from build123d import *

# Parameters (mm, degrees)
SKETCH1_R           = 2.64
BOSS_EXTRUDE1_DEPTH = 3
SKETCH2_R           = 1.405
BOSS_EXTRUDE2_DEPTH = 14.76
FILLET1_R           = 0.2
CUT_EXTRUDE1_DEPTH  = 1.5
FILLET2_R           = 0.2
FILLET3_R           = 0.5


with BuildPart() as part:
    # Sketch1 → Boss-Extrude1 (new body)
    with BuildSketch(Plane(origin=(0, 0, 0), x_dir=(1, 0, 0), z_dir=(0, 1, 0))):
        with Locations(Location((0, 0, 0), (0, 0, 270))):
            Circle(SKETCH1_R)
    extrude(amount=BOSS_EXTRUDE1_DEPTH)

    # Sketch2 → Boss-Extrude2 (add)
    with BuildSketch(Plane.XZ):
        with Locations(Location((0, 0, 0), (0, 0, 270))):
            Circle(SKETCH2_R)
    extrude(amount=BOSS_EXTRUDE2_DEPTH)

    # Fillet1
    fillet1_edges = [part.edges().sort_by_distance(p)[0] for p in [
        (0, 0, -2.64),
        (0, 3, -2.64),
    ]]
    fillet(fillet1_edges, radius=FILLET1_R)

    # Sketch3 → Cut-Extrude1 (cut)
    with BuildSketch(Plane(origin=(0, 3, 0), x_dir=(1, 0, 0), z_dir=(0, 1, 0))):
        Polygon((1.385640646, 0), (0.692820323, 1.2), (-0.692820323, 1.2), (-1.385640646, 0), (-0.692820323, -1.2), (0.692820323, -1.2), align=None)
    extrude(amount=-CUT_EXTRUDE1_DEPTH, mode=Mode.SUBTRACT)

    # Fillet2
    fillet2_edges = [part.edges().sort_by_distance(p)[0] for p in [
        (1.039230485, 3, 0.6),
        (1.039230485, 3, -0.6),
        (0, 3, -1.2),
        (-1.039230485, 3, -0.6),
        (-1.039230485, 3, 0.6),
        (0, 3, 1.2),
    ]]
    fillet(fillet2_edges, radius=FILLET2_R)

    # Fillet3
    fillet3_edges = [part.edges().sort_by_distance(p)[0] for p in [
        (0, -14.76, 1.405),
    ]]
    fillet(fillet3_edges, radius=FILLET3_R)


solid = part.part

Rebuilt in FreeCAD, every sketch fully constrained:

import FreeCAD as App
import Part
import Sketcher
Q = App.Units.Quantity


def edges_at(feature, points):
    """Names of the edges that pass closest to the given points."""
    edges = feature.Shape.Edges
    near = lambda p: min(range(len(edges)), key=lambda i: edges[i].distToShape(Part.Vertex(*p))[0])
    return sorted({f"Edge{near(p) + 1}" for p in points})

doc = App.newDocument("Part")
body = doc.addObject("PartDesign::Body", "Body")

sketch1 = doc.addObject("Sketcher::SketchObject", "Sketch")
body.addObject(sketch1)
sketch1.AttachmentSupport = (doc.XZ_Plane, [""])
sketch1.MapMode = "FlatFace"
sketch1.addGeometry(Part.Circle(App.Vector(0, 0, 0), App.Vector(0, 0, 1), 2.6), False)
sketch1.addConstraint([
    Sketcher.Constraint("Coincident", 0, 3, -1, 1),
    Sketcher.Constraint("Diameter", 0, Q("5.28 mm")),
])
pad1 = doc.addObject("PartDesign::Pad", "Pad")
body.addObject(pad1)
pad1.Profile = sketch1
pad1.Length = 3
pad1.Reversed = True

sketch2 = doc.addObject("Sketcher::SketchObject", "Sketch001")
body.addObject(sketch2)
sketch2.AttachmentSupport = (doc.XZ_Plane, [""])
sketch2.MapMode = "FlatFace"
sketch2.addGeometry(Part.Circle(App.Vector(0, 0, 0), App.Vector(0, 0, 1), 1.4), False)
sketch2.addConstraint([
    Sketcher.Constraint("Coincident", 0, 3, -1, 1),
    Sketcher.Constraint("Diameter", 0, Q("2.81 mm")),
])
pad2 = doc.addObject("PartDesign::Pad", "Pad001")
body.addObject(pad2)
pad2.Profile = sketch2
pad2.Length = 14.76
doc.recompute()

fillet = doc.addObject("PartDesign::Fillet", "Fillet")
body.addObject(fillet)
fillet.Base = (pad2, edges_at(pad2, [(0, 0, -2.64), (0, 3, -2.64)]))
fillet.Radius = 0.2

sketch3 = doc.addObject("Sketcher::SketchObject", "Sketch002")
body.addObject(sketch3)
sketch3.AttachmentSupport = (doc.XZ_Plane, [""])
sketch3.MapMode = "FlatFace"
sketch3.AttachmentOffset = App.Placement(App.Vector(0, 0, -3), App.Rotation())
sketch3.addGeometry([
    Part.LineSegment(App.Vector(1.4, 0, 0), App.Vector(0.7, -1.2, 0)),
    Part.LineSegment(App.Vector(0.7, -1.2, 0), App.Vector(-0.7, -1.2, 0)),
    Part.LineSegment(App.Vector(-0.7, -1.2, 0), App.Vector(-1.4, 0, 0)),
    Part.LineSegment(App.Vector(-1.4, 0, 0), App.Vector(-0.7, 1.2, 0)),
    Part.LineSegment(App.Vector(-0.7, 1.2, 0), App.Vector(0.7, 1.2, 0)),
    Part.LineSegment(App.Vector(0.7, 1.2, 0), App.Vector(1.4, 0, 0)),
], False)
sketch3.addConstraint([
    Sketcher.Constraint("Coincident", 0, 2, 1, 1),
    Sketcher.Constraint("Coincident", 1, 2, 2, 1),
    Sketcher.Constraint("Coincident", 2, 2, 3, 1),
    Sketcher.Constraint("Coincident", 3, 2, 4, 1),
    Sketcher.Constraint("Coincident", 4, 2, 5, 1),
    Sketcher.Constraint("Coincident", 5, 2, 0, 1),
    Sketcher.Constraint("Horizontal", 1),
    Sketcher.Constraint("Horizontal", 4),
    Sketcher.Constraint("Symmetric", 0, 2, 3, 2, -1, 1),
    Sketcher.Constraint("Symmetric", 2, 2, 5, 2, -1, 1),
    Sketcher.Constraint("PointOnObject", 2, 2, -1),
    Sketcher.Constraint("Parallel", 2, 5),
    Sketcher.Constraint("Vertical", 1, 2, 3, 2),
    Sketcher.Constraint("Angle", 0, Q("-120 deg")),
    Sketcher.Constraint("DistanceY", 0, 2, -1, 1, Q("1.2 mm")),
    Sketcher.Constraint("DistanceX", 1, 2, 1, 1, Q("1.385641 mm")),
])
pocket1 = doc.addObject("PartDesign::Pocket", "Pocket")
body.addObject(pocket1)
pocket1.Profile = sketch3
pocket1.Length = 1.5
pocket1.Reversed = True
doc.recompute()

fillet2 = doc.addObject("PartDesign::Fillet", "Fillet001")
body.addObject(fillet2)
fillet2.Base = (pocket1, edges_at(pocket1, [
    (1.039, 3, 0.6),
    (1.039, 3, -0.6),
    (0, 3, -1.2),
    (-1.039, 3, -0.6),
    (-1.039, 3, 0.6),
    (0, 3, 1.2),
]))
fillet2.Radius = 0.2
doc.recompute()

fillet3 = doc.addObject("PartDesign::Fillet", "Fillet002")
body.addObject(fillet3)
fillet3.Base = (fillet2, edges_at(fillet2, [(0, -14.76, 1.405)]))
fillet3.Radius = 0.5

doc.recompute()
